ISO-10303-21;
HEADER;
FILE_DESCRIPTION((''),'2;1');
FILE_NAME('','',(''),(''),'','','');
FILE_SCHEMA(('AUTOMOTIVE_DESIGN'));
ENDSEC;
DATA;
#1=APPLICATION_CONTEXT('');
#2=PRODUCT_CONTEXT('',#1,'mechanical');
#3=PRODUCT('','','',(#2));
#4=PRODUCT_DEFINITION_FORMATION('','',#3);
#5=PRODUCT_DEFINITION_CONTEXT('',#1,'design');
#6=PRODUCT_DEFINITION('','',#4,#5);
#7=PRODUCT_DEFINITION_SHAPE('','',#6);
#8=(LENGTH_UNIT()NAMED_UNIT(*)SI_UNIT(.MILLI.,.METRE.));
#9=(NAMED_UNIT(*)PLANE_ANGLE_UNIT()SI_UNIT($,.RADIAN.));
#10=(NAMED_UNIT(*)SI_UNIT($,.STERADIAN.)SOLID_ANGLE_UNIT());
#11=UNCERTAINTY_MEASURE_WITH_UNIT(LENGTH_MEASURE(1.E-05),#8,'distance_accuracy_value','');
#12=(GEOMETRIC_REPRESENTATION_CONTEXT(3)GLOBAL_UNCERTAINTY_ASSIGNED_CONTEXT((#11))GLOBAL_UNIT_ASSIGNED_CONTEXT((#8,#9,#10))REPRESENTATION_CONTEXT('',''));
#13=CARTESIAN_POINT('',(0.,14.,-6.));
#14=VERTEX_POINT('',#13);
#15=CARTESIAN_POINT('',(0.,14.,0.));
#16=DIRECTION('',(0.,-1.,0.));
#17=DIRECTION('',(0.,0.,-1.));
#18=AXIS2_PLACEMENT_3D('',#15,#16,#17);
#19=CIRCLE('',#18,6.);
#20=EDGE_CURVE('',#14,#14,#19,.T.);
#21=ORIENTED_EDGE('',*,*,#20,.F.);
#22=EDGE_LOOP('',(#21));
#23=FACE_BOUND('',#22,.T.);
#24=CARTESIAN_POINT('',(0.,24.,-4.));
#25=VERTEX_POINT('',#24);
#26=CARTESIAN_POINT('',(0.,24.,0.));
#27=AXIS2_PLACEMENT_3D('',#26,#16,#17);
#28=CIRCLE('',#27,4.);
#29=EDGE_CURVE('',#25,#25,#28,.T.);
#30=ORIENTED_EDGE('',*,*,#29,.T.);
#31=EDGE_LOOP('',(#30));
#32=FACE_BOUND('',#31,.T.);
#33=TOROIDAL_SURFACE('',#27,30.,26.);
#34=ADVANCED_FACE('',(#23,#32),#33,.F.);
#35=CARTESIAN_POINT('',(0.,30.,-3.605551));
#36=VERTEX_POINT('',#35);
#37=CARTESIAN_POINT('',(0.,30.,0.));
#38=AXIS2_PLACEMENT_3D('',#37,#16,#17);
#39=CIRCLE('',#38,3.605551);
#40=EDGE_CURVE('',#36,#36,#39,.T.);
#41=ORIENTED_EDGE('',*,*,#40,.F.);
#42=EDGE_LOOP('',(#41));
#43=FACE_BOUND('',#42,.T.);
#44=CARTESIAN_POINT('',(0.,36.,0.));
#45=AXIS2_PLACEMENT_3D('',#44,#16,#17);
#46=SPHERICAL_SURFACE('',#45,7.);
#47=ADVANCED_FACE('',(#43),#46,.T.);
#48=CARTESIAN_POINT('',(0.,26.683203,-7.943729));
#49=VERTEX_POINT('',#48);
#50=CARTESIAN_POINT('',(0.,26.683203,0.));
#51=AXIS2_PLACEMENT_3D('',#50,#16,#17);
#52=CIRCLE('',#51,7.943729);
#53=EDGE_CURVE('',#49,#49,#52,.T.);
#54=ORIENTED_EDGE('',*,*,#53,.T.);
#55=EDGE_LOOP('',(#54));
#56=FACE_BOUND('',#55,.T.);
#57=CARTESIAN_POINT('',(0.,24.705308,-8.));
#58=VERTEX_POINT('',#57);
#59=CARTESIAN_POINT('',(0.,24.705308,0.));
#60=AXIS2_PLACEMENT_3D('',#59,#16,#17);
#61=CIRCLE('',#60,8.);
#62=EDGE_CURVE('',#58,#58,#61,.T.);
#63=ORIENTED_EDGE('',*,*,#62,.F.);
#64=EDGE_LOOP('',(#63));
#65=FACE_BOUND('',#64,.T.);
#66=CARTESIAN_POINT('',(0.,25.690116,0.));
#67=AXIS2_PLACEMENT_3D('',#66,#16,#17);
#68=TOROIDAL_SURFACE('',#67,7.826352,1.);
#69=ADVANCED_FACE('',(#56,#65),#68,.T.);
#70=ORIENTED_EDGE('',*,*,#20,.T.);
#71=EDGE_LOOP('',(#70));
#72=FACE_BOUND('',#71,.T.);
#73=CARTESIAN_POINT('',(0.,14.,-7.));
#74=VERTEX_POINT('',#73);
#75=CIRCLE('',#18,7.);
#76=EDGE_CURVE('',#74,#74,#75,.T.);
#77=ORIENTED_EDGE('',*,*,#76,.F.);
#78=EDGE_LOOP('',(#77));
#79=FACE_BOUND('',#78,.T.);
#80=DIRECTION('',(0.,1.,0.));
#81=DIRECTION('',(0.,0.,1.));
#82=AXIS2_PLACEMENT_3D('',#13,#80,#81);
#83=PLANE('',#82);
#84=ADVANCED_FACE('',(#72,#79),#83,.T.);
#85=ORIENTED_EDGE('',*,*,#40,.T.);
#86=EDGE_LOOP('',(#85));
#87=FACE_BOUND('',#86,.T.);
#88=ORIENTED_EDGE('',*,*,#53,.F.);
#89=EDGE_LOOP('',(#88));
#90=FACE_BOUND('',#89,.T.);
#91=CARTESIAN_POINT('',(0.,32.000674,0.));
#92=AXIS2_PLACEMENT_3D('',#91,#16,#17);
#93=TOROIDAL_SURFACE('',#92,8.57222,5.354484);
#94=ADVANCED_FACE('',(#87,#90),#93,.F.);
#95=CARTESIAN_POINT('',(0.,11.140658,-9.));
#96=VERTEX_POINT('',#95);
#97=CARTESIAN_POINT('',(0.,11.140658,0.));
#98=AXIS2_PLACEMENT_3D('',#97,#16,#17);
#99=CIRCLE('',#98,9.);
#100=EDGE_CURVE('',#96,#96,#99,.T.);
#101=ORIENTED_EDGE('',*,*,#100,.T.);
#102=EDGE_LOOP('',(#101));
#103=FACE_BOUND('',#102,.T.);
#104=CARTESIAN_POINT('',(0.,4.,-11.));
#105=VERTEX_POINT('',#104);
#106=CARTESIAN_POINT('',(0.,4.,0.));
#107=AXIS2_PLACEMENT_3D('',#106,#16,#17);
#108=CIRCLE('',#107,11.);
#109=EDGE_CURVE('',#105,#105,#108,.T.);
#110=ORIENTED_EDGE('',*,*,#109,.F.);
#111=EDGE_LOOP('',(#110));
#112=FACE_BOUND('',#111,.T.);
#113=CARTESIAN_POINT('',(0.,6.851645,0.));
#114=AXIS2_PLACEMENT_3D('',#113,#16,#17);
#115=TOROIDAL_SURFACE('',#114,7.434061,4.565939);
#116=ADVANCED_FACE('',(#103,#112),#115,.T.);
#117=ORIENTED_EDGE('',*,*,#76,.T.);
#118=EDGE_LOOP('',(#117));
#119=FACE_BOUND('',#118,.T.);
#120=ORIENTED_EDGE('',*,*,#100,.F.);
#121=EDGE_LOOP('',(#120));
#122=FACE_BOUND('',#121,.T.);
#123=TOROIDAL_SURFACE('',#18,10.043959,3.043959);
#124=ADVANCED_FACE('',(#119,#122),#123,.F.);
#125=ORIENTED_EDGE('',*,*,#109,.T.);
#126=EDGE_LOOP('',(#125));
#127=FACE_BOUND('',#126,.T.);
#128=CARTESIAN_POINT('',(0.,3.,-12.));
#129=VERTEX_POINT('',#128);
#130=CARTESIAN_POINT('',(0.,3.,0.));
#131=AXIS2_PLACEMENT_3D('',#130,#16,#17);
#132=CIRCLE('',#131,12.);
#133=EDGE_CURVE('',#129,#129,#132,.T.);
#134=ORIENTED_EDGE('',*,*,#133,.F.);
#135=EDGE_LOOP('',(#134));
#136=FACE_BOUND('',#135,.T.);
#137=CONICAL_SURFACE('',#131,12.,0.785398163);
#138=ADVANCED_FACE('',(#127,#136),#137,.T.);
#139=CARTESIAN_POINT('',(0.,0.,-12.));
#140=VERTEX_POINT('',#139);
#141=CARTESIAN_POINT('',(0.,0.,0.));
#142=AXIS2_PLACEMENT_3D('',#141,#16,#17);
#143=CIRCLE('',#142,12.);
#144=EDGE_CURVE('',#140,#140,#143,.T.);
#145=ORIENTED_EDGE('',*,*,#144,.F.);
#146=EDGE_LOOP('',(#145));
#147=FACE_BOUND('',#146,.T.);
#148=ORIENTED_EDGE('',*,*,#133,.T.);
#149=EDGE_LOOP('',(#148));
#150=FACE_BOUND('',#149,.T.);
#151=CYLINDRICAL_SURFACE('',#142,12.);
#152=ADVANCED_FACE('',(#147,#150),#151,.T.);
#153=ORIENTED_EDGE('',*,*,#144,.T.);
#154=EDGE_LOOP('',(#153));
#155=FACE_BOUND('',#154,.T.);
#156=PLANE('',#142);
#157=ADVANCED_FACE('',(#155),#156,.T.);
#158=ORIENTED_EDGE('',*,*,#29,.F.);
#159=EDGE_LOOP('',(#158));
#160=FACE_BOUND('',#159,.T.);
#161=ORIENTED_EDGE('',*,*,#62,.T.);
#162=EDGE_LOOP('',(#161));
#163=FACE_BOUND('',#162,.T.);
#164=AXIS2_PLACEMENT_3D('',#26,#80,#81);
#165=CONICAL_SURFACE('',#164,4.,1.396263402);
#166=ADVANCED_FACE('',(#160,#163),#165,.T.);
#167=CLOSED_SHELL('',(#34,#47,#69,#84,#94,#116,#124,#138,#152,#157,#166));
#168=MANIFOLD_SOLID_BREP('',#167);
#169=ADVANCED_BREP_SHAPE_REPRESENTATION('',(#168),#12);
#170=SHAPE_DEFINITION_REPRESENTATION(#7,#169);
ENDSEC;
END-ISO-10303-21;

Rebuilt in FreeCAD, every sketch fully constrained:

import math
import FreeCAD as App
import Part
import Sketcher
from FreeCAD import Vector
Q = App.Units.Quantity

doc = App.newDocument("Part")
body = doc.addObject("PartDesign::Body", "Body")

sketch1 = body.newObject("Sketcher::SketchObject", "Sketch")
sketch1.AttachmentSupport = (doc.getObject("YZ_Plane"), [""])
sketch1.MapMode = "FlatFace"
sketch1.addGeometry([
    Part.LineSegment(Vector(43, 0, 0), Vector(0, 0, 0)),
    Part.LineSegment(Vector(0, 0, 0), Vector(0, -12, 0)),
    Part.LineSegment(Vector(0, -12, 0), Vector(3, -12, 0)),
    Part.LineSegment(Vector(3, -12, 0), Vector(4, -11, 0)),
    Part.ArcOfCircle(Part.Circle(Vector(6.9, -7.4, 0), Vector(0, 0, 1), 4.6), math.radians(-129), math.radians(-20)),
    Part.ArcOfCircle(Part.Circle(Vector(14, -10, 0), Vector(0, 0, 1), 3), math.radians(90), math.radians(160)),
    Part.LineSegment(Vector(14, -7, 0), Vector(14, -6, 0)),
    Part.ArcOfCircle(Part.Circle(Vector(24, -30, 0), Vector(0, 0, 1), 26), math.radians(90), math.radians(113)),
    Part.LineSegment(Vector(24, -4, 0), Vector(24.7, -8, 0)),
    Part.ArcOfCircle(Part.Circle(Vector(25.7, -7.8, 0), Vector(0, 0, 1), 1), math.radians(-170), math.radians(-7)),
    Part.ArcOfCircle(Part.Circle(Vector(32, -8.6, 0), Vector(0, 0, 1), 5.4), math.radians(112), math.radians(173)),
    Part.ArcOfCircle(Part.Circle(Vector(36, 0, 0), Vector(0, 0, 1), 7), math.radians(-149), math.radians(0)),
], False)
sketch1.addConstraint([
    Sketcher.Constraint("Coincident", 0, 2, 1, 1),
    Sketcher.Constraint("Coincident", 1, 2, 2, 1),
    Sketcher.Constraint("Coincident", 2, 2, 3, 1),
    Sketcher.Constraint("Coincident", 3, 2, 4, 1),
    Sketcher.Constraint("Tangent", 4, 2, 5, 2),
    Sketcher.Constraint("Coincident", 5, 1, 6, 1),
    Sketcher.Constraint("Coincident", 6, 2, 7, 2),
    Sketcher.Constraint("Coincident", 7, 1, 8, 1),
    Sketcher.Constraint("Tangent", 8, 2, 9, 1),
    Sketcher.Constraint("Tangent", 9, 2, 10, 2),
    Sketcher.Constraint("Coincident", 10, 1, 11, 1),
    Sketcher.Constraint("Coincident", 11, 2, 0, 1),
    Sketcher.Constraint("Horizontal", 0),
    Sketcher.Constraint("Vertical", 1),
    Sketcher.Constraint("Horizontal", 2),
    Sketcher.Constraint("Vertical", 6),
    Sketcher.Constraint("Coincident", 0, 2, -1, 1),
    Sketcher.Constraint("PointOnObject", 11, 3, -1),
    Sketcher.Constraint("Radius", 7, Q("26 mm")),
    Sketcher.Constraint("Radius", 9, Q("1 mm")),
    Sketcher.Constraint("Radius", 11, Q("7 mm")),
    Sketcher.Constraint("DistanceX", 0, 2, 0, 1, Q("43 mm")),
    Sketcher.Constraint("DistanceX", 2, 1, 2, 2, Q("3 mm")),
    Sketcher.Constraint("DistanceY", 1, 2, 1, 1, Q("12 mm")),
    Sketcher.Constraint("DistanceY", 6, 1, 6, 2, Q("1 mm")),
    Sketcher.Constraint("Angle", 3, Q("45 deg")),
    Sketcher.Constraint("Angle", 8, Q("-80 deg")),
    Sketcher.Constraint("DistanceX", -1, 1, 5, 3, Q("14 mm")),
    Sketcher.Constraint("DistanceX", -1, 1, 7, 3, Q("24 mm")),
    Sketcher.Constraint("DistanceY", 7, 3, -1, 1, Q("30 mm")),
    Sketcher.Constraint("DistanceX", -1, 1, 3, 2, Q("4 mm")),
    Sketcher.Constraint("DistanceY", 4, 2, -1, 1, Q("9 mm")),
    Sketcher.Constraint("DistanceX", -1, 1, 5, 1, Q("14 mm")),
    Sketcher.Constraint("DistanceX", -1, 1, 7, 1, Q("24 mm")),
    Sketcher.Constraint("DistanceY", 8, 2, -1, 1, Q("8 mm")),
    Sketcher.Constraint("DistanceX", -1, 1, 10, 1, Q("30 mm")),
    Sketcher.Constraint("Radius", 4, Q("4.565939 mm")),
    Sketcher.Constraint("Radius", 10, Q("5.354484 mm")),
])
revolution = body.newObject("PartDesign::Revolution", "Revolution")
revolution.Profile = sketch1
revolution.ReferenceAxis = (sketch1, ["H_Axis"])
revolution.Angle = 360

doc.recompute()
